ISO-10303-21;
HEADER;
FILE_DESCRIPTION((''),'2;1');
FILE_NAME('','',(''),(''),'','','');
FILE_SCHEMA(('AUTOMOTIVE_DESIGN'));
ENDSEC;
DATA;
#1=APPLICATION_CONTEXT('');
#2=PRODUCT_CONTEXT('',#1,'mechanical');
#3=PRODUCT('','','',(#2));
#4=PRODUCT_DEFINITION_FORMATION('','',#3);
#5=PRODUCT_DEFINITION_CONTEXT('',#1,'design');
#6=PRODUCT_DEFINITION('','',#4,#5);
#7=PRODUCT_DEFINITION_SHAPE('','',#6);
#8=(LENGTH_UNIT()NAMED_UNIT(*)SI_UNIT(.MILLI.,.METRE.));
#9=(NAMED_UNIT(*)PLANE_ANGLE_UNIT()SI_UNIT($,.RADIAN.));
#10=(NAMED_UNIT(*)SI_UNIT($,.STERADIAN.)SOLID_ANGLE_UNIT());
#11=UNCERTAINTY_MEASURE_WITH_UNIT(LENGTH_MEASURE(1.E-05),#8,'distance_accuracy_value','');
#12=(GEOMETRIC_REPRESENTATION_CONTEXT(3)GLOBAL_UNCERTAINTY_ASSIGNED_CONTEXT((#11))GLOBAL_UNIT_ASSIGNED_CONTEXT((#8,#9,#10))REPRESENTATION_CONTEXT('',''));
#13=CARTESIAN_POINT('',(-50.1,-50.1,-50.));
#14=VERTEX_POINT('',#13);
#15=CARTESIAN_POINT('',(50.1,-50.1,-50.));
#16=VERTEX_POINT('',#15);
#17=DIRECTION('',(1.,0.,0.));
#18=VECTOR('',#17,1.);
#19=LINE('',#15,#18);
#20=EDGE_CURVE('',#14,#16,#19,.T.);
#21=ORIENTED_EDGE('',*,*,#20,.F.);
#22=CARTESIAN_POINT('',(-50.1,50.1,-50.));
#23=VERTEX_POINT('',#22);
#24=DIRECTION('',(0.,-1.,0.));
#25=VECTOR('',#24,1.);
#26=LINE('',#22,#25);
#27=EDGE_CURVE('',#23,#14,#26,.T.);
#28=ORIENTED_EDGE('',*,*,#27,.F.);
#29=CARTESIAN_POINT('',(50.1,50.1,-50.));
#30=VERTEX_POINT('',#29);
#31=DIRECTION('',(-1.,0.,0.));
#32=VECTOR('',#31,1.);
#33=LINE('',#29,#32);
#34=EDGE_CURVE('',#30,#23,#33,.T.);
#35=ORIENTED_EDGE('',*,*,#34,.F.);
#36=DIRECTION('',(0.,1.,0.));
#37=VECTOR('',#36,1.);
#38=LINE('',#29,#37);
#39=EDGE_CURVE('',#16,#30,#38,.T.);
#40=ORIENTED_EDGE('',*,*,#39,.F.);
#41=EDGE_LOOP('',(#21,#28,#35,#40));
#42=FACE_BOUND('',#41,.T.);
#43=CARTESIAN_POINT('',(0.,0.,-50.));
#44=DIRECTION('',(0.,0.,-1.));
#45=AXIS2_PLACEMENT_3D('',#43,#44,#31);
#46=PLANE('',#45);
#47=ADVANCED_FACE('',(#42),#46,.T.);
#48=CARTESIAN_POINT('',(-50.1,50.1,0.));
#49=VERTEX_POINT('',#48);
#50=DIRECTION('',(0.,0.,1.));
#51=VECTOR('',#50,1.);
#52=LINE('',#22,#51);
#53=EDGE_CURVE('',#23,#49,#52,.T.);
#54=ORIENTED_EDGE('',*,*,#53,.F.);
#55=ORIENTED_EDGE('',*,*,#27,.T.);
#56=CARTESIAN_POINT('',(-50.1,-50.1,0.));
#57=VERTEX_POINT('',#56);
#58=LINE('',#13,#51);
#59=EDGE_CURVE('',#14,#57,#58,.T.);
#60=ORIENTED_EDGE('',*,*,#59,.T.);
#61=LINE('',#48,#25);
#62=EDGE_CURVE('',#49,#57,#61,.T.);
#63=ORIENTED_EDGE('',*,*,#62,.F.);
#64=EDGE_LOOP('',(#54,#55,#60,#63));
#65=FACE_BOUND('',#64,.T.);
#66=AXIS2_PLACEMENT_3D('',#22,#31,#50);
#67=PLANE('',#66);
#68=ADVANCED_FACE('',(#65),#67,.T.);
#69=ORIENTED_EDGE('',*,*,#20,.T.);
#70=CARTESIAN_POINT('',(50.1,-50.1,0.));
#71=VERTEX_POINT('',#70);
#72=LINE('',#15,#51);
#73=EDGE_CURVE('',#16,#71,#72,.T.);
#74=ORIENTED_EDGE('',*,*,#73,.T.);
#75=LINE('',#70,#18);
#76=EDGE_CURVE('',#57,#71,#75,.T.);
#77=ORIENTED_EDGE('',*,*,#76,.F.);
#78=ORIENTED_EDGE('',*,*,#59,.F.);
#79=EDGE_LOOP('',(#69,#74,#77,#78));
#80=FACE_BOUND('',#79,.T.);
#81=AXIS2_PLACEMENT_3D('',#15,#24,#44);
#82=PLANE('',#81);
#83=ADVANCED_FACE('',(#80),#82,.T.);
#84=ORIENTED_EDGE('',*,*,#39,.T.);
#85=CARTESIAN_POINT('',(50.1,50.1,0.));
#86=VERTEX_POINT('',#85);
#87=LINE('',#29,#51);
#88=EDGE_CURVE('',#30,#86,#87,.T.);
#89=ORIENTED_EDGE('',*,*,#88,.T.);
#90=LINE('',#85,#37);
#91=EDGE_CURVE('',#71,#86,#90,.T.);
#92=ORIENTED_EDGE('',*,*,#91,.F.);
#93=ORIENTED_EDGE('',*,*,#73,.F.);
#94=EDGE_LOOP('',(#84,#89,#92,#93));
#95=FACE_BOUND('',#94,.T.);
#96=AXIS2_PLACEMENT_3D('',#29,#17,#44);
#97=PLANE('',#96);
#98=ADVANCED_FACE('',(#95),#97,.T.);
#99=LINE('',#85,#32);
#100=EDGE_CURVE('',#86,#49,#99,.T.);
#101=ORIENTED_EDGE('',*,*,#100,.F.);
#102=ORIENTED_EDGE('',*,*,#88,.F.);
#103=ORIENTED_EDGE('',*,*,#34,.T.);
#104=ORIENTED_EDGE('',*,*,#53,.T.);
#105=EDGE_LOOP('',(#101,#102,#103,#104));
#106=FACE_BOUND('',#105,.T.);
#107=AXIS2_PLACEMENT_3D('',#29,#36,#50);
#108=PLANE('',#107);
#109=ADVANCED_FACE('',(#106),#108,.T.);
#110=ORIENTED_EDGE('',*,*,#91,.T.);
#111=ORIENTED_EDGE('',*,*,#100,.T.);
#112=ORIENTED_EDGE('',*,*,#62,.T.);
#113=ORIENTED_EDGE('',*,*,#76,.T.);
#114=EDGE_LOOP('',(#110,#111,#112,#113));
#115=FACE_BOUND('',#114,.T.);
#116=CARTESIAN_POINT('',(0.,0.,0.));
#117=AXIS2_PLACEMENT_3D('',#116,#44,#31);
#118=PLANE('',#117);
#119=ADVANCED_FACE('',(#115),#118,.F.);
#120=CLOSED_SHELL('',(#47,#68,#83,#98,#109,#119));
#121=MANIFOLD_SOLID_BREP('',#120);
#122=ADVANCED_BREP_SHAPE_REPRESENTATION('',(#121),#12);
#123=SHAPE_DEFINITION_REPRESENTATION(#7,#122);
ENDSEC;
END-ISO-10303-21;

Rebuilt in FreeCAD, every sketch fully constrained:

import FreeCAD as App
import Part
import Sketcher
Q = App.Units.Quantity

doc = App.newDocument("Part")
params = doc.addObject("Spreadsheet::Sheet", "Params")
for row, (alias, value) in enumerate([
    ("sketch1_width", "100.2 mm"),
    ("pad1_length", "50 mm"),
], start=1):
    params.set(f"A{row}", alias)
    params.set(f"B{row}", "=" + value)
    params.setAlias(f"B{row}", alias)

body = doc.addObject("PartDesign::Body", "Body")

# Sketch on XY plane
sketch1 = doc.addObject("Sketcher::SketchObject", "Sketch")
body.addObject(sketch1)
sketch1.AttachmentSupport = (doc.XY_Plane, [""])
sketch1.MapMode = "FlatFace"
sketch1.addGeometry(Part.LineSegment(App.Vector(-50, 50, 0), App.Vector(-50, -50, 0)), False)
sketch1.addGeometry(Part.LineSegment(App.Vector(-50, -50, 0), App.Vector(50, -50, 0)), False)
sketch1.addGeometry(Part.LineSegment(App.Vector(50, -50, 0), App.Vector(50, 50, 0)), False)
sketch1.addGeometry(Part.LineSegment(App.Vector(50, 50, 0), App.Vector(-50, 50, 0)), False)
sketch1.addConstraint(Sketcher.Constraint("Coincident", 0, 2, 1, 1))
sketch1.addConstraint(Sketcher.Constraint("Coincident", 1, 2, 2, 1))
sketch1.addConstraint(Sketcher.Constraint("Coincident", 2, 2, 3, 1))
sketch1.addConstraint(Sketcher.Constraint("Coincident", 3, 2, 0, 1))
sketch1.addConstraint(Sketcher.Constraint("Vertical", 0))
sketch1.addConstraint(Sketcher.Constraint("Horizontal", 1))
sketch1.addConstraint(Sketcher.Constraint("Vertical", 2))
sketch1.addConstraint(Sketcher.Constraint("Horizontal", 3))
sketch1.addConstraint(Sketcher.Constraint("Symmetric", 0, 2, 2, 2, -1, 1))
sketch1.addConstraint(Sketcher.Constraint("Equal", 3, 0))
sketch1.addConstraint(Sketcher.Constraint("DistanceX", 1, 1, 1, 2, Q("100.2 mm")))
sketch1.setExpression("Constraints[10]", "Params.sketch1_width")
pad1 = doc.addObject("PartDesign::Pad", "Pad")
body.addObject(pad1)
pad1.Profile = sketch1
pad1.setExpression("Length", "Params.pad1_length")
pad1.Reversed = True

doc.recompute()
